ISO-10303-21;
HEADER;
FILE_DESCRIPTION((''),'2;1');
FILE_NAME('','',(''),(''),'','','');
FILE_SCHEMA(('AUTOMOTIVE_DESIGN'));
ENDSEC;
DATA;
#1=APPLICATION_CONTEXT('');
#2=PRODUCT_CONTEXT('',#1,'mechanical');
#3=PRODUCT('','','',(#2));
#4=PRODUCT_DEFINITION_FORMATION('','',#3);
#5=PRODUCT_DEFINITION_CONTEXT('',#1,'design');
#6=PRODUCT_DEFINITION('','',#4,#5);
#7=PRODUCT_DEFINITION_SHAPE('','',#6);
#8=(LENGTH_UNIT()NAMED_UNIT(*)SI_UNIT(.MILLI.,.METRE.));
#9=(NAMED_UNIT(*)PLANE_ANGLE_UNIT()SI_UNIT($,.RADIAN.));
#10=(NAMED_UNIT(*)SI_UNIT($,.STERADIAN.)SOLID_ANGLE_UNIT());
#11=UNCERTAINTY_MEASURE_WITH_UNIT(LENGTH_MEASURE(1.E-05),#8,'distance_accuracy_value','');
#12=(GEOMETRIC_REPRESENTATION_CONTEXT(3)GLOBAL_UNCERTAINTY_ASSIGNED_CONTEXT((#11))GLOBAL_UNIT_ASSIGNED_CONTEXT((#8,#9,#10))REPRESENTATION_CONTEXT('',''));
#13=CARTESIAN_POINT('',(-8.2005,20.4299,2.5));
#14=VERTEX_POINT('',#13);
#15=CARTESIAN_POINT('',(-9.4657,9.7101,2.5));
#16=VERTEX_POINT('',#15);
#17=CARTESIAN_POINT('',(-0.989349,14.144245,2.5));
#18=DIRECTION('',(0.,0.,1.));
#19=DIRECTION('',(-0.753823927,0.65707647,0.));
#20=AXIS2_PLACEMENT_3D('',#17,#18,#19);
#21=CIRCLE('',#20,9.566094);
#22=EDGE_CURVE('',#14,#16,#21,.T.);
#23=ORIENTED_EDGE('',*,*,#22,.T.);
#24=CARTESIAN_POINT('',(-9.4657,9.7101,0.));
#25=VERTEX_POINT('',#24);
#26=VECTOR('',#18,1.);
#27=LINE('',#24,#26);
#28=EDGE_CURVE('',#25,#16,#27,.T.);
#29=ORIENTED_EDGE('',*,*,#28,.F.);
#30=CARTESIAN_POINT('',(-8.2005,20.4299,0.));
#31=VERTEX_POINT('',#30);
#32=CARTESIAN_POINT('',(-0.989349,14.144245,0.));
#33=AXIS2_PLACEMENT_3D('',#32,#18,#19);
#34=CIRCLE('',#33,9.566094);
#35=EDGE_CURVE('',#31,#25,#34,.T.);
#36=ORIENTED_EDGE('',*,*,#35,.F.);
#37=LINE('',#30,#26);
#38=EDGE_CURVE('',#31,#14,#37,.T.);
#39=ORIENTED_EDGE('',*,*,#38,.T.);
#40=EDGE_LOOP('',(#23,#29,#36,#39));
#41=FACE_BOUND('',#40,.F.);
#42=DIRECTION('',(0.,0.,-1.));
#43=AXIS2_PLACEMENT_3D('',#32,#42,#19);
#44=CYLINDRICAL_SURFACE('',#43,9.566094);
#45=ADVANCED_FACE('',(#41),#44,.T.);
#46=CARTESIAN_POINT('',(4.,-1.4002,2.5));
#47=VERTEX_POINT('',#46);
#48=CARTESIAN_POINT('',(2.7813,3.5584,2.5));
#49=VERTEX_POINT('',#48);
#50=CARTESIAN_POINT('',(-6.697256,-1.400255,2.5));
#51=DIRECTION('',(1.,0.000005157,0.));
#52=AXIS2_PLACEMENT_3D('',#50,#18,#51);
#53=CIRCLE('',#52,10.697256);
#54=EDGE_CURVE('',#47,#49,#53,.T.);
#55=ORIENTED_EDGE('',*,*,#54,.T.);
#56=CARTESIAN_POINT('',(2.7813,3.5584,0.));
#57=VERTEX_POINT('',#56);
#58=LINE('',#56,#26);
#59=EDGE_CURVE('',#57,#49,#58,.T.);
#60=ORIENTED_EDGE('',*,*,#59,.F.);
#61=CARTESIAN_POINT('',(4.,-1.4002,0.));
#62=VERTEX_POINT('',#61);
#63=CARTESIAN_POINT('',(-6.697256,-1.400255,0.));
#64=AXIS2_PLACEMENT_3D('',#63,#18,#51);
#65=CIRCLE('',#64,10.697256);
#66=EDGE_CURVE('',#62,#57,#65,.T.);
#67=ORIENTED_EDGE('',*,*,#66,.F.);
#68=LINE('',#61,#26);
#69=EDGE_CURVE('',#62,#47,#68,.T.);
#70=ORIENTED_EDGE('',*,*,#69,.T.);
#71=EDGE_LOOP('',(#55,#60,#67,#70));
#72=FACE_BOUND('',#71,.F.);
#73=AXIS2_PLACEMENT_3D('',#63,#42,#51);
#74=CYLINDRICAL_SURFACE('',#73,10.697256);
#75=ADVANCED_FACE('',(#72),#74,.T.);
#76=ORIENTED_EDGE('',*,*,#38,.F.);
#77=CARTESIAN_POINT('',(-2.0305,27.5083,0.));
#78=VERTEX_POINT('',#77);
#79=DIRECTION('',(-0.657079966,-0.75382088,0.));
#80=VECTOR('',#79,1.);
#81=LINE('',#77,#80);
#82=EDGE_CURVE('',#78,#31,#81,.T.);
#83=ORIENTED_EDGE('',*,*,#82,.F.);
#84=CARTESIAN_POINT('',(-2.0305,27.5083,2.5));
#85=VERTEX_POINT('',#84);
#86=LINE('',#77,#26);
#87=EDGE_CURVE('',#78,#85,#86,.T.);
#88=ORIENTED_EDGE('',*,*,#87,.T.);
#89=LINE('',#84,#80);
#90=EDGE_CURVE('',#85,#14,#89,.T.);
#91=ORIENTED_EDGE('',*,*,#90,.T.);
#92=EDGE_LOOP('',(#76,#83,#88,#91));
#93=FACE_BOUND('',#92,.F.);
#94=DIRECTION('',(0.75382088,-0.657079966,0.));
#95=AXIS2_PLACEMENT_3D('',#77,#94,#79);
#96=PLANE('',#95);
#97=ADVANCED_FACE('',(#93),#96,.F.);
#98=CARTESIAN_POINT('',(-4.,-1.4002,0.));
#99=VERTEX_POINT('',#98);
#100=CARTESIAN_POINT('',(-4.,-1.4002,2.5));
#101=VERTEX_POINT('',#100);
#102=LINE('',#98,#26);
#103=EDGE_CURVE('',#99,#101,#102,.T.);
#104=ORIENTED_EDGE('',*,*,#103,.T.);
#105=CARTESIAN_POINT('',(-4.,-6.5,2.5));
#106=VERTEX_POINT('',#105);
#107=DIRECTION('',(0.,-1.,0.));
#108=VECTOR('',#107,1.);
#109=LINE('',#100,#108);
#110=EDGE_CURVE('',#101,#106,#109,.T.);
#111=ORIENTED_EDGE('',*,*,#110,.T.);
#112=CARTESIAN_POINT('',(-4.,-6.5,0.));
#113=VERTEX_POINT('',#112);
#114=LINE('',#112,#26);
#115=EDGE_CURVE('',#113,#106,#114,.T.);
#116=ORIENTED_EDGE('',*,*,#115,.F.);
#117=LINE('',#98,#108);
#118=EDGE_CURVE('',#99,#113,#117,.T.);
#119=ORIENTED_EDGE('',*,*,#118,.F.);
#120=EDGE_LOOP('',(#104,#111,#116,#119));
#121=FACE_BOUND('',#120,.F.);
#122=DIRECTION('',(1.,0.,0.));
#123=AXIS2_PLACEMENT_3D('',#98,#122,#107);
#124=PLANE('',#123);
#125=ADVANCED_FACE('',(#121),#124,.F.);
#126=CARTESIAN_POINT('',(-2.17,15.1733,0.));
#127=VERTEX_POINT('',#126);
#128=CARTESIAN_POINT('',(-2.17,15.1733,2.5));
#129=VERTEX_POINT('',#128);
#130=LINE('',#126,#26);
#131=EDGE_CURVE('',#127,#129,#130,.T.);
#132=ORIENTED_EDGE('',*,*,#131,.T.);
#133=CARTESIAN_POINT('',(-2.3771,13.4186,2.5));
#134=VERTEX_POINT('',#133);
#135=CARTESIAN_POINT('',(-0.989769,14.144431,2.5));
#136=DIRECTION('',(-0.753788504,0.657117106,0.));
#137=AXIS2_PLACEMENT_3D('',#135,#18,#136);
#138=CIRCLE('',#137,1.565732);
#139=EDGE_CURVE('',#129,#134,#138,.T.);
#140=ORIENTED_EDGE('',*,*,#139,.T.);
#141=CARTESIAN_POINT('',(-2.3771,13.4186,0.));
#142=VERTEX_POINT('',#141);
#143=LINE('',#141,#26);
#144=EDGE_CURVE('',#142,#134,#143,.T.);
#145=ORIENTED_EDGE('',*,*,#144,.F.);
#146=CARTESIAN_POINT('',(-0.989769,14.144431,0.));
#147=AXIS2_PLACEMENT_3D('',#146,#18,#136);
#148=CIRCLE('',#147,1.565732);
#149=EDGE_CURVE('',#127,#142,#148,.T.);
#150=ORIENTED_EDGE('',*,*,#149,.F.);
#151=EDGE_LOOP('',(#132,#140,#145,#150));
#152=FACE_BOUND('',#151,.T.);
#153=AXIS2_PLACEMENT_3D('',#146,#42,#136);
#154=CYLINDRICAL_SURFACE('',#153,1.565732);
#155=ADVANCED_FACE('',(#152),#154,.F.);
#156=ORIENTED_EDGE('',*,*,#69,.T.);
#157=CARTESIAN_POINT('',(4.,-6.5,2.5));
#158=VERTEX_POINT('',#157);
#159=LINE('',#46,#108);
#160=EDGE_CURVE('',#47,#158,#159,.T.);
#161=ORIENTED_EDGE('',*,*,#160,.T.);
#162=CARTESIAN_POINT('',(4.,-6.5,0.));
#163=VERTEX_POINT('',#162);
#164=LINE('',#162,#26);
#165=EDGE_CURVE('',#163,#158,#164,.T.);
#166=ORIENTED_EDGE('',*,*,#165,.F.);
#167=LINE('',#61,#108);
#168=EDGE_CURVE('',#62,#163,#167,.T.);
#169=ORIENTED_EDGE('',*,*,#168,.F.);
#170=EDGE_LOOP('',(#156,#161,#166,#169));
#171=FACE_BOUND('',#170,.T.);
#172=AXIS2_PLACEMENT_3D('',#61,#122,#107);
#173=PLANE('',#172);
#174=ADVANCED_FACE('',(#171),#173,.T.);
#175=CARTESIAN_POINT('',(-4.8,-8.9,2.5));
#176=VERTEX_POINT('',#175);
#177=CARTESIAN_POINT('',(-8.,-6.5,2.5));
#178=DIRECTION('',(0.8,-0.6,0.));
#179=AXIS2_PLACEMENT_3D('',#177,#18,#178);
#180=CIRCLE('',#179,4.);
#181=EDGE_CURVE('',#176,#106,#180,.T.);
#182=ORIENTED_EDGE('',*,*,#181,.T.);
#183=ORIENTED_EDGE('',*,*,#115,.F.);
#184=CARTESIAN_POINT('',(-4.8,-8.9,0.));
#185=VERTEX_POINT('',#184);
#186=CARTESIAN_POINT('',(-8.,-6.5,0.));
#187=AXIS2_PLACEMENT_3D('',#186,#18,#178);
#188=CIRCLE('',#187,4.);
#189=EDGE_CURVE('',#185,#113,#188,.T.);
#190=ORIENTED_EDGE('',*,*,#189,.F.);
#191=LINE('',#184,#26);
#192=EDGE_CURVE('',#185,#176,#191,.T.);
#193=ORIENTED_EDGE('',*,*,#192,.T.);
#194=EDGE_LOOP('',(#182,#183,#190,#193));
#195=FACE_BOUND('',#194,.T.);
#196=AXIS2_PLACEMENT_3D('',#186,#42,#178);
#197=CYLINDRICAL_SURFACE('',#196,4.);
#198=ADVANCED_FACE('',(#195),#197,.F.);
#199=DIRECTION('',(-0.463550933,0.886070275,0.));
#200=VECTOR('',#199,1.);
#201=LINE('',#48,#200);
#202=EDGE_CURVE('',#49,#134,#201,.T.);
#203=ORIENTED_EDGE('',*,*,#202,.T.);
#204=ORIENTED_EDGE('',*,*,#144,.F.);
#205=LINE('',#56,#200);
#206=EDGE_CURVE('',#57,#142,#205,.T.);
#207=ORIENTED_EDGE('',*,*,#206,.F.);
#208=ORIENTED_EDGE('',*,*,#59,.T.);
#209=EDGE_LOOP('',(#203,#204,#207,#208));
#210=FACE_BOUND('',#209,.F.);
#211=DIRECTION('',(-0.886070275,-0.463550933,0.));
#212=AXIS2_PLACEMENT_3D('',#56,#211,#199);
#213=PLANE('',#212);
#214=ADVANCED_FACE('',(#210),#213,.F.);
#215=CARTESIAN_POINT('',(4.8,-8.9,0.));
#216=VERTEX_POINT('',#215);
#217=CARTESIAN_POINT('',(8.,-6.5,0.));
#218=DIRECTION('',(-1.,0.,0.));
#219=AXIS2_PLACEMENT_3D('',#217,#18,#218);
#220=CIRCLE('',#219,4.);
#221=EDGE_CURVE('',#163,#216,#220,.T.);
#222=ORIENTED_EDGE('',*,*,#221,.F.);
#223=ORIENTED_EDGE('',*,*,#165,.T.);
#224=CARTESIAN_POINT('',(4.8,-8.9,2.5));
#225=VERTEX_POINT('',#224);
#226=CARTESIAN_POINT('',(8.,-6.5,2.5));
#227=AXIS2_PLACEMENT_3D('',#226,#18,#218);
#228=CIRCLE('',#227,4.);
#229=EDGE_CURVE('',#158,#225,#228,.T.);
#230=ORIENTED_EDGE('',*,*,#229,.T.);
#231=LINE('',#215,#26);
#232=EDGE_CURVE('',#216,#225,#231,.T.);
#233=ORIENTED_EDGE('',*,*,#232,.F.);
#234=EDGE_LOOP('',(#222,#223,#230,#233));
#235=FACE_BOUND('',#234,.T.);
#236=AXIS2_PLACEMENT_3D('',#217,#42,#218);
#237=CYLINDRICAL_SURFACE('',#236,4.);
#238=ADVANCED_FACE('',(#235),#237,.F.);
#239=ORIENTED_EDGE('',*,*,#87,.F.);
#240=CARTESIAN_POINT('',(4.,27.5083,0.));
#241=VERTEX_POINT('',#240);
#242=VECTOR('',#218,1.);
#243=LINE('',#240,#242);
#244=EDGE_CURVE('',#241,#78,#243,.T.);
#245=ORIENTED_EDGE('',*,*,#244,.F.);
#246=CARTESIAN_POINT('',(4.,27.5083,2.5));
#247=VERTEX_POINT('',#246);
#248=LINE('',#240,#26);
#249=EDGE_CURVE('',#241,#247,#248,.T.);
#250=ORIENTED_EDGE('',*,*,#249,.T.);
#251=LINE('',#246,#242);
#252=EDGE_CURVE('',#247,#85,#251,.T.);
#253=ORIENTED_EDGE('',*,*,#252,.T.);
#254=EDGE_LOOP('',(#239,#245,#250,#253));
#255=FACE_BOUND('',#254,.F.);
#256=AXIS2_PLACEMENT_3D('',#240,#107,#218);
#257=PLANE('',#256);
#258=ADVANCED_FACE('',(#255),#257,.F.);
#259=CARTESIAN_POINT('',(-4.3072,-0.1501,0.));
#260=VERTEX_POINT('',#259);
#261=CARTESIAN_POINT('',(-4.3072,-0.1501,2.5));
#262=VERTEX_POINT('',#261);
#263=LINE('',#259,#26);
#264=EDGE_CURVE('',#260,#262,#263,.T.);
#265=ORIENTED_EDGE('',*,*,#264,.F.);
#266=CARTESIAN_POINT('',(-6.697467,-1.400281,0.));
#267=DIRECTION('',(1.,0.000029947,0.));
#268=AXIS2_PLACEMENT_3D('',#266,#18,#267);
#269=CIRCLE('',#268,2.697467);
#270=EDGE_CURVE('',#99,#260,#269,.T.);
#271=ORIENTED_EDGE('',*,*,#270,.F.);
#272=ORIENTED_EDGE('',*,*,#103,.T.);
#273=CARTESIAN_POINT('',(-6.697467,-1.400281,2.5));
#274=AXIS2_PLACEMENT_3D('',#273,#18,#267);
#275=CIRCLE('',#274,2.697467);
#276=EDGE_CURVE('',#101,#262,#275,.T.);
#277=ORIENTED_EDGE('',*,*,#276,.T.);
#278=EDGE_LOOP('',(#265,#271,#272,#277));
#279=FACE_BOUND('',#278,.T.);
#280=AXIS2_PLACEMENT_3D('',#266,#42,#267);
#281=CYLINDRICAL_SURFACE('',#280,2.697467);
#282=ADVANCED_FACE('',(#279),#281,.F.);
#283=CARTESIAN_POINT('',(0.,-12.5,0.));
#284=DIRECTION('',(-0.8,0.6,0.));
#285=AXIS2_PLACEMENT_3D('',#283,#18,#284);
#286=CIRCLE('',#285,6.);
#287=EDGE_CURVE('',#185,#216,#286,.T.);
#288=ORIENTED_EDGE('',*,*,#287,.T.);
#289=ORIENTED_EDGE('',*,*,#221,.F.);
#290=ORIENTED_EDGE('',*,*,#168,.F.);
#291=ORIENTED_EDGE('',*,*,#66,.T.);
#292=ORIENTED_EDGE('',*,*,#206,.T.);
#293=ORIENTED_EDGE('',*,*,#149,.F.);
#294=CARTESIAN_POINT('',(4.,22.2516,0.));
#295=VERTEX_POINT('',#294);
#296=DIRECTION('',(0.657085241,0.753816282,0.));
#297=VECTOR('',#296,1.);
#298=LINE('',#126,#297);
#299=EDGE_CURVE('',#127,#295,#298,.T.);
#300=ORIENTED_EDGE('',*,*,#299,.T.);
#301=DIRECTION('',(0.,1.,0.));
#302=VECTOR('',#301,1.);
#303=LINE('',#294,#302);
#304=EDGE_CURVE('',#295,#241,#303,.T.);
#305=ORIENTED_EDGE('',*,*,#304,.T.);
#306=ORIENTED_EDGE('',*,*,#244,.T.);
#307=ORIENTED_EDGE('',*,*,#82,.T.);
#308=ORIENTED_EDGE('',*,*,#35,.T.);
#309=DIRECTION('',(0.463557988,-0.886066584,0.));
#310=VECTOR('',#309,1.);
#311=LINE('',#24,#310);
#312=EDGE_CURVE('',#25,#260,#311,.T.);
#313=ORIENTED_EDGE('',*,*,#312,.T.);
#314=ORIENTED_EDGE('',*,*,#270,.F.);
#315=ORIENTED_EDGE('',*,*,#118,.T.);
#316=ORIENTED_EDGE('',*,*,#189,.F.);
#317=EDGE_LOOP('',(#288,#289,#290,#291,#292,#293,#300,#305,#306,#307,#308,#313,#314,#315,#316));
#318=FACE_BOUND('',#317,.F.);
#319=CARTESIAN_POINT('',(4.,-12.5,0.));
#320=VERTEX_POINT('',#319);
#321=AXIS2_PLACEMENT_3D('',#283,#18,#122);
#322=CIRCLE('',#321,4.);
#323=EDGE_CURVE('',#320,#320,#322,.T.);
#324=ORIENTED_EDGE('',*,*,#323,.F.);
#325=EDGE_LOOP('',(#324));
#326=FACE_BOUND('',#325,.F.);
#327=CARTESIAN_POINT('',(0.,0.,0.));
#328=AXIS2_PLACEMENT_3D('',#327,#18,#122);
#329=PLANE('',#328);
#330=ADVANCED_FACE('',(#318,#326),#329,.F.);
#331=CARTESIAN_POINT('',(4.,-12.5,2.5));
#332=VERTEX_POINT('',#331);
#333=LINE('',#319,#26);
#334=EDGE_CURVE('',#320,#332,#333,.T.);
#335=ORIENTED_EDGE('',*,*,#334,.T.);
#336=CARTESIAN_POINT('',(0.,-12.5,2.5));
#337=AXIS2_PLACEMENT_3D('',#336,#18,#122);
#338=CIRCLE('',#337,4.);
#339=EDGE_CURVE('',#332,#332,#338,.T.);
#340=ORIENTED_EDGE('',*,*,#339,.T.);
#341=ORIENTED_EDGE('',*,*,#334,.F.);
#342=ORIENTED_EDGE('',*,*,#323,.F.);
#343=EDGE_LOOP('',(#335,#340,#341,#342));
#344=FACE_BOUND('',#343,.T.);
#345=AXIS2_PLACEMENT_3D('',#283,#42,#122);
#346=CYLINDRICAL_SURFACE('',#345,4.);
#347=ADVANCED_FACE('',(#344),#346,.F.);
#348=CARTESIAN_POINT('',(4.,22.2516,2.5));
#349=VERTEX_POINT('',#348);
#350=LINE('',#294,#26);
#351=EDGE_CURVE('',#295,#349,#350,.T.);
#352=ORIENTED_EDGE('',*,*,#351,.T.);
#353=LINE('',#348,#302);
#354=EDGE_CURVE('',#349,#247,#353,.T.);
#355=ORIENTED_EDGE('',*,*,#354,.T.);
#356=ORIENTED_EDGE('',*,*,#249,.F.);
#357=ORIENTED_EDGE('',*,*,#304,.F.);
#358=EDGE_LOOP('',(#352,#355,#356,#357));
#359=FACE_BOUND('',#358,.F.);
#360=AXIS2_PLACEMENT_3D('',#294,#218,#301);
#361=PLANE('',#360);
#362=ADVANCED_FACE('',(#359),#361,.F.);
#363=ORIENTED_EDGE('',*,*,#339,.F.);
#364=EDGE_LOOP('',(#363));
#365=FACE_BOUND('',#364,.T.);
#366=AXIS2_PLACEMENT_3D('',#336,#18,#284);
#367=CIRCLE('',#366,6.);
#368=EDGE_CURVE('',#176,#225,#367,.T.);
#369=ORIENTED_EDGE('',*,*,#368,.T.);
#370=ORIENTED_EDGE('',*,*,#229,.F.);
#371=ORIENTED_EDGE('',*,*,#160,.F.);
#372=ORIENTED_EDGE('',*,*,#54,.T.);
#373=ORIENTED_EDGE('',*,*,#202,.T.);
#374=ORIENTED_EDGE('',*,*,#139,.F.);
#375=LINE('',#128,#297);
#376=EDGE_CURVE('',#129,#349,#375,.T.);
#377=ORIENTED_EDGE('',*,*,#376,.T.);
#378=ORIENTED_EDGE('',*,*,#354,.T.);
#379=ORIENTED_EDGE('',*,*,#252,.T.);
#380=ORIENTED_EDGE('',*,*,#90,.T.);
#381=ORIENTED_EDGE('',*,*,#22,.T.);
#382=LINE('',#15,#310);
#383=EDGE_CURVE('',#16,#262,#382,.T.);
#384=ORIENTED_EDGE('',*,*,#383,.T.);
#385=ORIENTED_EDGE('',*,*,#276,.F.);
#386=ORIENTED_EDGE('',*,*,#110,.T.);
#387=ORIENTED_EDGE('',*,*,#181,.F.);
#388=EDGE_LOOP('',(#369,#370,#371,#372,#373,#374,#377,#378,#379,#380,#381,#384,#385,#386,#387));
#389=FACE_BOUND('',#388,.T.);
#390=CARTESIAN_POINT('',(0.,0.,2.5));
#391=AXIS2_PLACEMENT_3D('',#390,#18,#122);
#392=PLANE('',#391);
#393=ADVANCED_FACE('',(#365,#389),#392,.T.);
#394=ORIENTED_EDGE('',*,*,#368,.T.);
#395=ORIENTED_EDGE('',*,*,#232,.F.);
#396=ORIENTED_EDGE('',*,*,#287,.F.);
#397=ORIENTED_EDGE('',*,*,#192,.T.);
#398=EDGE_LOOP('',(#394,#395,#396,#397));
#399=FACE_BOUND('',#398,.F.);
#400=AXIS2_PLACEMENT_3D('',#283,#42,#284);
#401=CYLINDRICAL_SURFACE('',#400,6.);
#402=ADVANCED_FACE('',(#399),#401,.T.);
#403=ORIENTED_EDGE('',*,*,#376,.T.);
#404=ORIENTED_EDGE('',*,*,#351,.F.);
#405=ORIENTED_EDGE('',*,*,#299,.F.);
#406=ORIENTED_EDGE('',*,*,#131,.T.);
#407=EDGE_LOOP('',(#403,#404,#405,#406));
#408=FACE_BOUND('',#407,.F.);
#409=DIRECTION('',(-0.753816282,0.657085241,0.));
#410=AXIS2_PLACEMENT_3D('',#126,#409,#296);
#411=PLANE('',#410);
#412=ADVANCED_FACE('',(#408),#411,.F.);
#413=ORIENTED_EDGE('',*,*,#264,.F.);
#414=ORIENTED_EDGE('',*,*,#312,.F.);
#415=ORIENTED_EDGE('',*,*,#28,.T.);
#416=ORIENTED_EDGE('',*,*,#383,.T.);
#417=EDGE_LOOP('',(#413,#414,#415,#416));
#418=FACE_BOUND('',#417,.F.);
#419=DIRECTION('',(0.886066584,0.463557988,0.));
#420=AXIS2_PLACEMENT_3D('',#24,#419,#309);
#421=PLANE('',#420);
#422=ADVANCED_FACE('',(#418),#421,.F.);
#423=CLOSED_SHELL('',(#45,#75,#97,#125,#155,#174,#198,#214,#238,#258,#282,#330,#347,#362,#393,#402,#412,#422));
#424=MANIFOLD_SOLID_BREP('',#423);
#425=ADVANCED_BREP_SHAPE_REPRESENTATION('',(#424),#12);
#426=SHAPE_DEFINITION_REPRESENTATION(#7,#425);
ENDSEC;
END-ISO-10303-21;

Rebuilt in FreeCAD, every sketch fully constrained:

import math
import FreeCAD as App
import Part
import Sketcher

V = App.Vector
Q = App.Units.Quantity

doc = App.newDocument("Part")
body = doc.addObject("PartDesign::Body", "Body")

# Sketch on XY plane
sketch1 = body.newObject("Sketcher::SketchObject", "Sketch")
sketch1.AttachmentSupport = (doc.getObject("XY_Plane"), [""])
sketch1.MapMode = "FlatFace"
sketch1.addGeometry([
    Part.ArcOfCircle(Part.Circle(V(-8, -6.5, 0), V(0, 0, 1), 4), math.radians(-37), math.radians(0)),  # 0
    Part.ArcOfCircle(Part.Circle(V(0, -12.5, 0), V(0, 0, 1), 6), math.radians(143), math.radians(397)),  # 1
    Part.ArcOfCircle(Part.Circle(V(8, -6.5, 0), V(0, 0, 1), 4), math.radians(180), math.radians(217)),  # 2
    Part.LineSegment(V(4, -6.5, 0), V(4, -1.4, 0)),  # 3
    Part.ArcOfCircle(Part.Circle(V(-6.7, -1.4, 0), V(0, 0, 1), 10.7), math.radians(0), math.radians(28)),  # 4
    Part.LineSegment(V(2.8, 3.6, 0), V(-2.4, 13.4, 0)),  # 5
    Part.ArcOfCircle(Part.Circle(V(-1, 14.1, 0), V(0, 0, 1), 1.6), math.radians(139), math.radians(208)),  # 6
    Part.LineSegment(V(-2.2, 15.2, 0), V(4, 22.3, 0)),  # 7
    Part.LineSegment(V(4, 22.3, 0), V(4, 27.5, 0)),  # 8
    Part.LineSegment(V(4, 27.5, 0), V(-2, 27.5, 0)),  # 9
    Part.LineSegment(V(-2, 27.5, 0), V(-8.2, 20.4, 0)),  # 10
    Part.ArcOfCircle(Part.Circle(V(-1, 14.1, 0), V(0, 0, 1), 9.6), math.radians(139), math.radians(208)),  # 11
    Part.LineSegment(V(-9.5, 9.7, 0), V(-4.3, -0.2, 0)),  # 12
    Part.ArcOfCircle(Part.Circle(V(-6.7, -1.4, 0), V(0, 0, 1), 2.7), math.radians(0), math.radians(28)),  # 13
    Part.LineSegment(V(-4, -1.4, 0), V(-4, -6.5, 0)),  # 14
    Part.Circle(V(0, -12.5, 0), V(0, 0, 1), 4),  # 15
], False)
sketch1.addConstraint([
    Sketcher.Constraint("Tangent", 0, 1, 1, 1),
    Sketcher.Constraint("Tangent", 1, 2, 2, 2),
    Sketcher.Constraint("Tangent", 2, 1, 3, 1),
    Sketcher.Constraint("Tangent", 3, 2, 4, 1),
    Sketcher.Constraint("Tangent", 4, 2, 5, 1),
    Sketcher.Constraint("Tangent", 5, 2, 6, 2),
    Sketcher.Constraint("Tangent", 6, 1, 7, 1),
    Sketcher.Constraint("Coincident", 7, 2, 8, 1),
    Sketcher.Constraint("Coincident", 8, 2, 9, 1),
    Sketcher.Constraint("Coincident", 9, 2, 10, 1),
    Sketcher.Constraint("Tangent", 10, 2, 11, 1),
    Sketcher.Constraint("Tangent", 11, 2, 12, 1),
    Sketcher.Constraint("Tangent", 12, 2, 13, 2),
    Sketcher.Constraint("Tangent", 13, 1, 14, 1),
    Sketcher.Constraint("Tangent", 14, 2, 0, 2),
    Sketcher.Constraint("Vertical", 3),
    Sketcher.Constraint("Vertical", 8),
    Sketcher.Constraint("Horizontal", 9),
    Sketcher.Constraint("Vertical", 14),
    Sketcher.Constraint("Coincident", 11, 3, 6, 3),
    Sketcher.Constraint("Coincident", 13, 3, 4, 3),
    Sketcher.Constraint("Coincident", 15, 3, 1, 3),
    Sketcher.Constraint("Equal", 0, 2),
    Sketcher.Constraint("Equal", 2, 15),
    Sketcher.Constraint("Symmetric", 0, 3, 2, 3, -2),
    Sketcher.Constraint("Parallel", 7, 10),
    Sketcher.Constraint("Parallel", 5, 12),
    Sketcher.Constraint("Vertical", 3, 2, 7, 2),
    Sketcher.Constraint("Equal", 7, 10),
    Sketcher.Constraint("Diameter", 15, Q("8 mm")),
    Sketcher.Constraint("DistanceX", 0, 3, -1, 1, Q("8 mm")),
    Sketcher.Constraint("Radius", 1, Q("6 mm")),
    Sketcher.Constraint("DistanceY", 0, 3, -1, 1, Q("6.5 mm")),
    Sketcher.Constraint("Radius", 4, Q("10.6968 mm")),
    Sketcher.Constraint("Radius", 6, Q("1.5658 mm")),
    Sketcher.Constraint("Distance", 7, Q("9.39 mm")),
    Sketcher.Constraint("DistanceX", 6, 1, -1, 1, Q("2.17 mm")),
    Sketcher.Constraint("DistanceY", -1, 1, 10, 2, Q("20.43 mm")),
    Sketcher.Constraint("DistanceY", 12, 2, -1, 1, Q("0.15 mm")),
])
pad1 = body.newObject("PartDesign::Pad", "Pad")
pad1.Profile = sketch1
pad1.Length = 2.5

doc.recompute()
